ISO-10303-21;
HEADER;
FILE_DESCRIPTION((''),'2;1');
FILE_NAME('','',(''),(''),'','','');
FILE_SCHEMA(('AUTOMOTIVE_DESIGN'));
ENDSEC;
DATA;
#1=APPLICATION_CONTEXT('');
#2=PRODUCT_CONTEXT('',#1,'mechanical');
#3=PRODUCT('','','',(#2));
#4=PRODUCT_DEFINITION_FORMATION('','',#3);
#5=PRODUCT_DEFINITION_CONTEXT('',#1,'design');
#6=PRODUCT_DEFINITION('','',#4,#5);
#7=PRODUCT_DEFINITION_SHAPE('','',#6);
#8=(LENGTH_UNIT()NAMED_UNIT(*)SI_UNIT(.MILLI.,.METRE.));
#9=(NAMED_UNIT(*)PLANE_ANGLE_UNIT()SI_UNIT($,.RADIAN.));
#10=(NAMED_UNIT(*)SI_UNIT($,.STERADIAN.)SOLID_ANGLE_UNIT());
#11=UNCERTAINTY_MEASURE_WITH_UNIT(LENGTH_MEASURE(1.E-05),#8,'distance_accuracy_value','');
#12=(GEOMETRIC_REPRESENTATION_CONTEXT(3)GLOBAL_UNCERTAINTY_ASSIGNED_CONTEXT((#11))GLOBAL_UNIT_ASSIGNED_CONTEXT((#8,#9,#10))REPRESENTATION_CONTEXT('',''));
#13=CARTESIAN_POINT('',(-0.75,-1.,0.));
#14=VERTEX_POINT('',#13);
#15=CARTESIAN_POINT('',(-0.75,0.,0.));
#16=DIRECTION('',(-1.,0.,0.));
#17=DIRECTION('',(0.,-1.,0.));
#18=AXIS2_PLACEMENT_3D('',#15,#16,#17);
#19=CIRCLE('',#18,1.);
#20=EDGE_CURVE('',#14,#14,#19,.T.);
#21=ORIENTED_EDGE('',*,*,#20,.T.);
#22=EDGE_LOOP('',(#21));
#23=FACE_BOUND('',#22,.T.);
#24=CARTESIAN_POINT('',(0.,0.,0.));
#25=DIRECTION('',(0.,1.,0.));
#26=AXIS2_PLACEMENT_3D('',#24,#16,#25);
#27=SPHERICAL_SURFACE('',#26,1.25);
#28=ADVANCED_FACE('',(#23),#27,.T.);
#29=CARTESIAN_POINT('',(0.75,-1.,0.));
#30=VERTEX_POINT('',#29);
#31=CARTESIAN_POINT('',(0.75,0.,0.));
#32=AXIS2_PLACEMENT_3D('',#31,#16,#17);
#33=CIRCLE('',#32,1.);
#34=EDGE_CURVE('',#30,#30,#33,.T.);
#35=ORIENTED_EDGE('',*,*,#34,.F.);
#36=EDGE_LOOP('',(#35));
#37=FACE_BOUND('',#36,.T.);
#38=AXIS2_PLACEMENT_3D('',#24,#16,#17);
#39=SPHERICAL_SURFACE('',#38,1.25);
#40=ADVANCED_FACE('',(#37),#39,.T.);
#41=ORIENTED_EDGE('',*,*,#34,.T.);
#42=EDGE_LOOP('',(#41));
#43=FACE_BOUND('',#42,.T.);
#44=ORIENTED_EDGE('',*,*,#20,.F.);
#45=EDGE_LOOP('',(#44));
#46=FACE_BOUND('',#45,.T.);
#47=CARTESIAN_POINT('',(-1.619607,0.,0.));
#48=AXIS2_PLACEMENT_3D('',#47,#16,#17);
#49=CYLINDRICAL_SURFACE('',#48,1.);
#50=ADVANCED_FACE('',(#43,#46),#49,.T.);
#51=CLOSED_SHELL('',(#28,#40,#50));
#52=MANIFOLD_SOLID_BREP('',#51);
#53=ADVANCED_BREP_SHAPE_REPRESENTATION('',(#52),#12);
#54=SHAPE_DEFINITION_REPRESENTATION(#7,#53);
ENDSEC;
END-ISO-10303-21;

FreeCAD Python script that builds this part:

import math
import FreeCAD as App
import Part
import Sketcher
from FreeCAD import Vector

doc = App.newDocument("Part")
body = doc.addObject("PartDesign::Body", "Body")

# Sketch on XY plane
sketch1 = body.newObject("Sketcher::SketchObject", "Sketch")
sketch1.AttachmentSupport = (doc.getObject("XY_Plane"), [""])
sketch1.MapMode = "FlatFace"
sketch1.addGeometry([
    Part.LineSegment(Vector(0.75, 1, 0), Vector(-0.75, 1, 0)),
    Part.ArcOfCircle(Part.Circle(Vector(0, 0, 0), Vector(0, 0, 1), 1.25), math.radians(126.869898), math.radians(180)),
    Part.LineSegment(Vector(-1.25, 0, 0), Vector(1.25, 0, 0)),
    Part.ArcOfCircle(Part.Circle(Vector(0, 0, 0), Vector(0, 0, 1), 1.25), math.radians(0), math.radians(53.130102)),
], False)
sketch1.addConstraint([
    Sketcher.Constraint("Coincident", 0, 2, 1, 1),
    Sketcher.Constraint("Coincident", 1, 2, 2, 1),
    Sketcher.Constraint("Coincident", 2, 2, 3, 1),
    Sketcher.Constraint("Coincident", 3, 2, 0, 1),
    Sketcher.Constraint("Horizontal", 0),
    Sketcher.Constraint("Horizontal", 2),
    Sketcher.Constraint("Coincident", 1, 3, -1, 1),
    Sketcher.Constraint("Coincident", 3, 3, -1, 1),
    Sketcher.Constraint("Equal", 1, 3),
    Sketcher.Constraint("PointOnObject", 1, 2, -1),
    Sketcher.Constraint("Radius", 1, 1.25),
    Sketcher.Constraint("DistanceX", 0, 2, 0, 1, 1.5),
])
revolution = body.newObject("PartDesign::Revolution", "Revolution")
revolution.Profile = sketch1
revolution.ReferenceAxis = (sketch1, ["H_Axis"])
revolution.Angle = 360

doc.recompute()
